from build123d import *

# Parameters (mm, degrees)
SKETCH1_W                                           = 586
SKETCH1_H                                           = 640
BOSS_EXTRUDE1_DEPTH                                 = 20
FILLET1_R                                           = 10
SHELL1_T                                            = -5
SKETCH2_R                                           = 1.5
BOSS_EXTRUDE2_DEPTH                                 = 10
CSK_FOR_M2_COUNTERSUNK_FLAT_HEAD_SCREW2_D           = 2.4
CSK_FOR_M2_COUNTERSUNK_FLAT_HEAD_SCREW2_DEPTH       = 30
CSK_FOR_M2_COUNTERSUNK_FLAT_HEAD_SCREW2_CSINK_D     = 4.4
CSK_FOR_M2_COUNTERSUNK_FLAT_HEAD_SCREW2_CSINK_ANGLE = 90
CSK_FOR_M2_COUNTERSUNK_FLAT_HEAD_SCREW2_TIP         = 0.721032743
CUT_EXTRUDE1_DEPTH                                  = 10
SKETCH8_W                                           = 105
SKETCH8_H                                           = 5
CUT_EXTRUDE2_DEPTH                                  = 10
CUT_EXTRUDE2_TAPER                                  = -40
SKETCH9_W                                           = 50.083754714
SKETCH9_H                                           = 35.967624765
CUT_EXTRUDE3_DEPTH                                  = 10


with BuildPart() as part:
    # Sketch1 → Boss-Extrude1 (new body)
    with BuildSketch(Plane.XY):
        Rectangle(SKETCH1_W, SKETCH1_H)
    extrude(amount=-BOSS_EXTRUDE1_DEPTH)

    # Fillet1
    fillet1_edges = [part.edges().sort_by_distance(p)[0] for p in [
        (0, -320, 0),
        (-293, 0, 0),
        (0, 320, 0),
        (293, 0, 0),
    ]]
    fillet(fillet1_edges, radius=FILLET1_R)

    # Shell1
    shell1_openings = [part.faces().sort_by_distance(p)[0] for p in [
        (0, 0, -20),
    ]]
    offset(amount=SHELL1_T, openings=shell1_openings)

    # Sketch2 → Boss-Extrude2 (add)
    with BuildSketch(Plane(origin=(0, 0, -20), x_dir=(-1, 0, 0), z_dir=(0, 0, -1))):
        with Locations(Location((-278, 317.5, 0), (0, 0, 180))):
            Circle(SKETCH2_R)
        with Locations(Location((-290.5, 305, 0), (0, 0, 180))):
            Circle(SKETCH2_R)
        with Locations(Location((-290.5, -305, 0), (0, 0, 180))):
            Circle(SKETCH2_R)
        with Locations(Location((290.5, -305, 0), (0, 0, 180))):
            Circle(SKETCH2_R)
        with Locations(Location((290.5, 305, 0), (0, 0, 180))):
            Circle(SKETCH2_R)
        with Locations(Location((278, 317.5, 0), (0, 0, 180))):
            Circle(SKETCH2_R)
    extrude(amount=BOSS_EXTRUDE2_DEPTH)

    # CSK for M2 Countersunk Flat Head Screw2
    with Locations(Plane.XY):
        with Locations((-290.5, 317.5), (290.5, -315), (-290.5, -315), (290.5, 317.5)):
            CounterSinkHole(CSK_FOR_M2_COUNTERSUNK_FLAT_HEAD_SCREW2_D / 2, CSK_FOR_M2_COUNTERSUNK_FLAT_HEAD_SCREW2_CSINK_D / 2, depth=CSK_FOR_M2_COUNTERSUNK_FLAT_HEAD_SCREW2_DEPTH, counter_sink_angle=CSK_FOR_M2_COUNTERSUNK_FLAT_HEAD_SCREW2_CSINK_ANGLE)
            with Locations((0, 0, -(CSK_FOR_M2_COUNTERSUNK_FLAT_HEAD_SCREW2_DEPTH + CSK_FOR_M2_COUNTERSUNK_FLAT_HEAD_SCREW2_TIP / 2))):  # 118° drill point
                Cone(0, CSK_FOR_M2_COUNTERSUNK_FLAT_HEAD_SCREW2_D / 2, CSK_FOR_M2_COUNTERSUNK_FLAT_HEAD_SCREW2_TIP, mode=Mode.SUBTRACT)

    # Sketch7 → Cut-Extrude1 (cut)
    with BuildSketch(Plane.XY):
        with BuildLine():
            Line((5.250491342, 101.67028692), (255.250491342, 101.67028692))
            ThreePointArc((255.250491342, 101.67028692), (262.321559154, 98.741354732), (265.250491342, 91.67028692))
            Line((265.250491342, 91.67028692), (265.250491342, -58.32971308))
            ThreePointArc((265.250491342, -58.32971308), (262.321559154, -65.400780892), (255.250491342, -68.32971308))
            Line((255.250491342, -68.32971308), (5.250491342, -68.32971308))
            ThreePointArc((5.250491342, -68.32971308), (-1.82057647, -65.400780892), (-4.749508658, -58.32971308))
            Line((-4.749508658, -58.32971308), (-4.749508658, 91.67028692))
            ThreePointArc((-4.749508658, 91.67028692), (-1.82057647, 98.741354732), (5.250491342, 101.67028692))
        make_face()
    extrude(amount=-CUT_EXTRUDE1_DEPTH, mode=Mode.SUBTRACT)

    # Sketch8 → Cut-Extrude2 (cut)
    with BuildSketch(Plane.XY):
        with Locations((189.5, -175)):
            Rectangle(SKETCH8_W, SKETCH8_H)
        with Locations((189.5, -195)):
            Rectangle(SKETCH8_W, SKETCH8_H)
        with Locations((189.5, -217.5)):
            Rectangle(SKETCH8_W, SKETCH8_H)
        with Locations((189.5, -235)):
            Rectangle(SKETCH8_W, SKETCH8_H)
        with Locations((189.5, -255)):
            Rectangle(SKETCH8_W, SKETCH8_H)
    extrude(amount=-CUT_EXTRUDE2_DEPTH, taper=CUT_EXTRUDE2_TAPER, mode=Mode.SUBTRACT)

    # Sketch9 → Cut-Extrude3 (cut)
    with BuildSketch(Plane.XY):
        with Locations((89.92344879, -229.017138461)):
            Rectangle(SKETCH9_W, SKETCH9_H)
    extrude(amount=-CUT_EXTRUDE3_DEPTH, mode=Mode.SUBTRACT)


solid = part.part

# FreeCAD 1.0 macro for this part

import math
import FreeCAD as App
import Part
import Sketcher


def edges_at(feature, points):
    """Names of the edges that pass closest to the given points."""
    edges = feature.Shape.Edges
    near = lambda p: min(range(len(edges)), key=lambda i: edges[i].distToShape(Part.Vertex(*p))[0])
    return sorted({f"Edge{near(p) + 1}" for p in points})


def faces_at(feature, points):
    """Names of the faces that lie closest to the given points."""
    faces = feature.Shape.Faces
    near = lambda p: min(range(len(faces)), key=lambda i: faces[i].distToShape(Part.Vertex(*p))[0])
    return sorted({f"Face{near(p) + 1}" for p in points})

doc = App.newDocument("Part")
body = doc.addObject("PartDesign::Body", "Body")

sketch1 = body.newObject("Sketcher::SketchObject", "Sketch")
sketch1.AttachmentSupport = (doc.getObject("XY_Plane"), [""])
sketch1.MapMode = "FlatFace"
sketch1.addGeometry([
    Part.LineSegment(App.Vector(-293, 320, 0), App.Vector(-293, -320, 0)),
    Part.LineSegment(App.Vector(-293, -320, 0), App.Vector(293, -320, 0)),
    Part.LineSegment(App.Vector(293, -320, 0), App.Vector(293, 320, 0)),
    Part.LineSegment(App.Vector(293, 320, 0), App.Vector(-293, 320, 0)),
], False)
sketch1.addConstraint([
    Sketcher.Constraint("Coincident", 0, 2, 1, 1),
    Sketcher.Constraint("Coincident", 1, 2, 2, 1),
    Sketcher.Constraint("Coincident", 2, 2, 3, 1),
    Sketcher.Constraint("Coincident", 3, 2, 0, 1),
    Sketcher.Constraint("Vertical", 0),
    Sketcher.Constraint("Horizontal", 1),
    Sketcher.Constraint("Vertical", 2),
    Sketcher.Constraint("Horizontal", 3),
    Sketcher.Constraint("Symmetric", 0, 2, 2, 2, -1, 1),
    Sketcher.Constraint("DistanceX", 1, 1, 1, 2, 586.0),
    Sketcher.Constraint("DistanceY", 0, 2, 0, 1, 640.0),
])
pad1 = body.newObject("PartDesign::Pad", "Pad")
pad1.Profile = sketch1
pad1.Length = 20
pad1.Reversed = True
doc.recompute()

fillet = body.newObject("PartDesign::Fillet", "Fillet")
fillet.Base = (pad1, edges_at(pad1, [
    (0, -320, 0),
    (-293, 0, 0),
    (0, 320, 0),
    (293, 0, 0),
]))
fillet.Radius = 10
doc.recompute()

thickness = body.newObject("PartDesign::Thickness", "Thickness")
thickness.Base = (fillet, faces_at(fillet, [(0, 0, -20)]))
thickness.Value = 5
thickness.Reversed = True
thickness.Join = "Arc"

sketch2 = body.newObject("Sketcher::SketchObject", "Sketch001")
sketch2.AttachmentSupport = (doc.getObject("XY_Plane"), [""])
sketch2.MapMode = "FlatFace"
sketch2.AttachmentOffset = App.Placement(App.Vector(0, 0, -20), App.Rotation())
sketch2.addGeometry([
    Part.Circle(App.Vector(278, 317.5, 0), App.Vector(0, 0, 1), 1.5),
    Part.Circle(App.Vector(290.5, 305, 0), App.Vector(0, 0, 1), 1.5),
    Part.Circle(App.Vector(290.5, -305, 0), App.Vector(0, 0, 1), 1.5),
    Part.Circle(App.Vector(-290.5, -305, 0), App.Vector(0, 0, 1), 1.5),
    Part.Circle(App.Vector(-290.5, 305, 0), App.Vector(0, 0, 1), 1.5),
    Part.Circle(App.Vector(-278, 317.5, 0), App.Vector(0, 0, 1), 1.5),
], False)
sketch2.addConstraint([
    Sketcher.Constraint("Equal", 0, 1),
    Sketcher.Constraint("Equal", 1, 2),
    Sketcher.Constraint("Equal", 2, 3),
    Sketcher.Constraint("Equal", 3, 4),
    Sketcher.Constraint("Equal", 4, 5),
    Sketcher.Constraint("Symmetric", 1, 3, 3, 3, -1, 1),
    Sketcher.Constraint("Symmetric", 2, 3, 4, 3, -1, 1),
    Sketcher.Constraint("Symmetric", 2, 3, 3, 3, -2),
    Sketcher.Constraint("Symmetric", 0, 3, 5, 3, -2),
    Sketcher.Constraint("Diameter", 0, 3.0),
    Sketcher.Constraint("DistanceX", -1, 1, 0, 3, 278.0),
    Sketcher.Constraint("DistanceY", -1, 1, 1, 3, 305.0),
    Sketcher.Constraint("DistanceX", 3, 3, 2, 3, 581.0),
    Sketcher.Constraint("DistanceY", -1, 1, 0, 3, 317.5),
])
pad2 = body.newObject("PartDesign::Pad", "Pad001")
pad2.Profile = sketch2
pad2.Length = 10
pad2.Reversed = True

sketch3 = body.newObject("Sketcher::SketchObject", "Sketch002")
sketch3.AttachmentSupport = (doc.getObject("XY_Plane"), [""])
sketch3.MapMode = "FlatFace"
sketch3.addGeometry([
    Part.Circle(App.Vector(-290.5, 317.5, 0), App.Vector(0, 0, 1), 1.2),
    Part.Circle(App.Vector(290.5, -315, 0), App.Vector(0, 0, 1), 1.2),
    Part.Circle(App.Vector(-290.5, -315, 0), App.Vector(0, 0, 1), 1.2),
    Part.Circle(App.Vector(290.5, 317.5, 0), App.Vector(0, 0, 1), 1.2),
], False)
sketch3.addConstraint([
    Sketcher.Constraint("Equal", 0, 1),
    Sketcher.Constraint("Equal", 1, 2),
    Sketcher.Constraint("Equal", 2, 3),
    Sketcher.Constraint("Symmetric", 1, 3, 2, 3, -2),
    Sketcher.Constraint("Symmetric", 0, 3, 3, 3, -2),
    Sketcher.Constraint("Vertical", 0, 3, 2, 3),
    Sketcher.Constraint("Diameter", 0, 2.4),
    Sketcher.Constraint("DistanceY", 1, 3, -1, 1, 315.0),
    Sketcher.Constraint("DistanceX", 0, 3, 1, 3, 581.0),
    Sketcher.Constraint("DistanceY", -1, 1, 0, 3, 317.5),
])
doc.recompute()
hole = body.newObject("PartDesign::Hole", "Hole")
hole.Profile = sketch3
hole.ThreadType = "None"
hole.Diameter = 2.4
hole.DepthType = "Dimension"
hole.Depth = 30
hole.DrillPoint = "Angled"
hole.DrillPointAngle = 118
hole.HoleCutType = "Countersink"
hole.HoleCutDiameter = 4.4
hole.HoleCutCountersinkAngle = 90

sketch4 = body.newObject("Sketcher::SketchObject", "Sketch003")
sketch4.AttachmentSupport = (doc.getObject("XY_Plane"), [""])
sketch4.MapMode = "FlatFace"
sketch4.addGeometry([
    Part.LineSegment(App.Vector(255, 102, 0), App.Vector(5, 102, 0)),
    Part.ArcOfCircle(Part.Circle(App.Vector(5, 92, 0), App.Vector(0, 0, 1), 10), math.radians(90), math.radians(180)),
    Part.LineSegment(App.Vector(-5, 92, 0), App.Vector(-5, -58, 0)),
    Part.ArcOfCircle(Part.Circle(App.Vector(5, -58, 0), App.Vector(0, 0, 1), 10), math.radians(180), math.radians(270)),
    Part.LineSegment(App.Vector(5, -68, 0), App.Vector(255, -68, 0)),
    Part.ArcOfCircle(Part.Circle(App.Vector(255, -58, 0), App.Vector(0, 0, 1), 10), math.radians(-90), math.radians(0)),
    Part.LineSegment(App.Vector(265, -58, 0), App.Vector(265, 92, 0)),
    Part.ArcOfCircle(Part.Circle(App.Vector(255, 92, 0), App.Vector(0, 0, 1), 10), math.radians(0), math.radians(90)),
], False)
sketch4.addConstraint([
    Sketcher.Constraint("Tangent", 0, 2, 1, 1),
    Sketcher.Constraint("Tangent", 1, 2, 2, 1),
    Sketcher.Constraint("Tangent", 2, 2, 3, 1),
    Sketcher.Constraint("Tangent", 3, 2, 4, 1),
    Sketcher.Constraint("Tangent", 4, 2, 5, 1),
    Sketcher.Constraint("Tangent", 5, 2, 6, 1),
    Sketcher.Constraint("Tangent", 6, 2, 7, 1),
    Sketcher.Constraint("Tangent", 7, 2, 0, 1),
    Sketcher.Constraint("Horizontal", 0),
    Sketcher.Constraint("Vertical", 2),
    Sketcher.Constraint("Horizontal", 4),
    Sketcher.Constraint("Vertical", 6),
    Sketcher.Constraint("Equal", 1, 3),
    Sketcher.Constraint("Equal", 3, 5),
    Sketcher.Constraint("Equal", 5, 7),
    Sketcher.Constraint("Radius", 1, 10.0),
    Sketcher.Constraint("DistanceX", 0, 2, 0, 1, 250.0),
    Sketcher.Constraint("DistanceY", 2, 2, 2, 1, 150.0),
    Sketcher.Constraint("DistanceX", -1, 1, 1, 3, 5.250491),
    Sketcher.Constraint("DistanceY", -1, 1, 1, 3, 91.670287),
])
pocket1 = body.newObject("PartDesign::Pocket", "Pocket")
pocket1.Profile = sketch4
pocket1.Length = 10

sketch5 = body.newObject("Sketcher::SketchObject", "Sketch004")
sketch5.AttachmentSupport = (doc.getObject("XY_Plane"), [""])
sketch5.MapMode = "FlatFace"
sketch5.addGeometry([
    Part.LineSegment(App.Vector(137, -172, 0), App.Vector(137, -178, 0)),
    Part.LineSegment(App.Vector(137, -178, 0), App.Vector(242, -178, 0)),
    Part.LineSegment(App.Vector(242, -178, 0), App.Vector(242, -172, 0)),
    Part.LineSegment(App.Vector(242, -172, 0), App.Vector(137, -172, 0)),
    Part.LineSegment(App.Vector(137, -192, 0), App.Vector(137, -198, 0)),
    Part.LineSegment(App.Vector(137, -198, 0), App.Vector(242, -198, 0)),
    Part.LineSegment(App.Vector(242, -198, 0), App.Vector(242, -192, 0)),
    Part.LineSegment(App.Vector(242, -192, 0), App.Vector(137, -192, 0)),
    Part.LineSegment(App.Vector(137, -215, 0), App.Vector(137, -220, 0)),
    Part.LineSegment(App.Vector(137, -220, 0), App.Vector(242, -220, 0)),
    Part.LineSegment(App.Vector(242, -220, 0), App.Vector(242, -215, 0)),
    Part.LineSegment(App.Vector(242, -215, 0), App.Vector(137, -215, 0)),
    Part.LineSegment(App.Vector(137, -232, 0), App.Vector(137, -238, 0)),
    Part.LineSegment(App.Vector(137, -238, 0), App.Vector(242, -238, 0)),
    Part.LineSegment(App.Vector(242, -238, 0), App.Vector(242, -232, 0)),
    Part.LineSegment(App.Vector(242, -232, 0), App.Vector(137, -232, 0)),
    Part.LineSegment(App.Vector(137, -252, 0), App.Vector(137, -258, 0)),
    Part.LineSegment(App.Vector(137, -258, 0), App.Vector(242, -258, 0)),
    Part.LineSegment(App.Vector(242, -258, 0), App.Vector(242, -252, 0)),
    Part.LineSegment(App.Vector(242, -252, 0), App.Vector(137, -252, 0)),
], False)
sketch5.addConstraint([
    Sketcher.Constraint("Coincident", 0, 2, 1, 1),
    Sketcher.Constraint("Coincident", 1, 2, 2, 1),
    Sketcher.Constraint("Coincident", 2, 2, 3, 1),
    Sketcher.Constraint("Coincident", 3, 2, 0, 1),
    Sketcher.Constraint("Coincident", 4, 2, 5, 1),
    Sketcher.Constraint("Coincident", 5, 2, 6, 1),
    Sketcher.Constraint("Coincident", 6, 2, 7, 1),
    Sketcher.Constraint("Coincident", 7, 2, 4, 1),
    Sketcher.Constraint("Coincident", 8, 2, 9, 1),
    Sketcher.Constraint("Coincident", 9, 2, 10, 1),
    Sketcher.Constraint("Coincident", 10, 2, 11, 1),
    Sketcher.Constraint("Coincident", 11, 2, 8, 1),
    Sketcher.Constraint("Coincident", 12, 2, 13, 1),
    Sketcher.Constraint("Coincident", 13, 2, 14, 1),
    Sketcher.Constraint("Coincident", 14, 2, 15, 1),
    Sketcher.Constraint("Coincident", 15, 2, 12, 1),
    Sketcher.Constraint("Coincident", 16, 2, 17, 1),
    Sketcher.Constraint("Coincident", 17, 2, 18, 1),
    Sketcher.Constraint("Coincident", 18, 2, 19, 1),
    Sketcher.Constraint("Coincident", 19, 2, 16, 1),
    Sketcher.Constraint("Vertical", 0),
    Sketcher.Constraint("Horizontal", 1),
    Sketcher.Constraint("Vertical", 2),
    Sketcher.Constraint("Horizontal", 3),
    Sketcher.Constraint("Vertical", 4),
    Sketcher.Constraint("Horizontal", 5),
    Sketcher.Constraint("Vertical", 6),
    Sketcher.Constraint("Horizontal", 7),
    Sketcher.Constraint("Vertical", 8),
    Sketcher.Constraint("Horizontal", 9),
    Sketcher.Constraint("Vertical", 10),
    Sketcher.Constraint("Horizontal", 11),
    Sketcher.Constraint("Vertical", 12),
    Sketcher.Constraint("Horizontal", 13),
    Sketcher.Constraint("Vertical", 14),
    Sketcher.Constraint("Horizontal", 15),
    Sketcher.Constraint("Vertical", 16),
    Sketcher.Constraint("Horizontal", 17),
    Sketcher.Constraint("Vertical", 18),
    Sketcher.Constraint("Horizontal", 19),
    Sketcher.Constraint("Vertical", 3, 2, 4, 2),
    Sketcher.Constraint("Vertical", 2, 2, 5, 2),
    Sketcher.Constraint("Vertical", 7, 2, 8, 2),
    Sketcher.Constraint("Vertical", 6, 2, 9, 2),
    Sketcher.Constraint("Vertical", 11, 2, 12, 2),
    Sketcher.Constraint("Vertical", 10, 2, 13, 2),
    Sketcher.Constraint("Vertical", 15, 2, 16, 2),
    Sketcher.Constraint("Vertical", 14, 2, 17, 2),
    Sketcher.Constraint("Equal", 2, 4),
    Sketcher.Constraint("Equal", 6, 8),
    Sketcher.Constraint("Equal", 10, 12),
    Sketcher.Constraint("Equal", 14, 16),
    Sketcher.Constraint("DistanceX", 1, 1, 1, 2, 105.0),
    Sketcher.Constraint("DistanceY", 0, 2, 0, 1, 5.0),
    Sketcher.Constraint("DistanceX", -1, 1, 0, 2, 137.0),
    Sketcher.Constraint("DistanceY", 8, 2, -1, 1, 220.0),
    Sketcher.Constraint("DistanceY", 4, 2, 0, 2, 20.0),
    Sketcher.Constraint("DistanceY", 12, 2, 4, 2, 40.0),
    Sketcher.Constraint("DistanceY", 16, 2, 12, 2, 20.0),
    Sketcher.Constraint("DistanceY", 0, 2, -1, 1, 177.5),
])
pocket2 = body.newObject("PartDesign::Pocket", "Pocket001")
pocket2.Profile = sketch5
pocket2.Length = 10
pocket2.TaperAngle = 40

sketch6 = body.newObject("Sketcher::SketchObject", "Sketch005")
sketch6.AttachmentSupport = (doc.getObject("XY_Plane"), [""])
sketch6.MapMode = "FlatFace"
sketch6.addGeometry([
    Part.LineSegment(App.Vector(65, -211, 0), App.Vector(65, -247, 0)),
    Part.LineSegment(App.Vector(65, -247, 0), App.Vector(115, -247, 0)),
    Part.LineSegment(App.Vector(115, -247, 0), App.Vector(115, -211, 0)),
    Part.LineSegment(App.Vector(115, -211, 0), App.Vector(65, -211, 0)),
], False)
sketch6.addConstraint([
    Sketcher.Constraint("Coincident", 0, 2, 1, 1),
    Sketcher.Constraint("Coincident", 1, 2, 2, 1),
    Sketcher.Constraint("Coincident", 2, 2, 3, 1),
    Sketcher.Constraint("Coincident", 3, 2, 0, 1),
    Sketcher.Constraint("Vertical", 0),
    Sketcher.Constraint("Horizontal", 1),
    Sketcher.Constraint("Vertical", 2),
    Sketcher.Constraint("Horizontal", 3),
    Sketcher.Constraint("DistanceX", 1, 1, 1, 2, 50.083755),
    Sketcher.Constraint("DistanceY", 0, 2, 0, 1, 35.967625),
    Sketcher.Constraint("DistanceX", -1, 1, 0, 2, 64.881571),
    Sketcher.Constraint("DistanceY", 0, 2, -1, 1, 247.000951),
])
pocket3 = body.newObject("PartDesign::Pocket", "Pocket002")
pocket3.Profile = sketch6
pocket3.Length = 10

doc.recompute()
